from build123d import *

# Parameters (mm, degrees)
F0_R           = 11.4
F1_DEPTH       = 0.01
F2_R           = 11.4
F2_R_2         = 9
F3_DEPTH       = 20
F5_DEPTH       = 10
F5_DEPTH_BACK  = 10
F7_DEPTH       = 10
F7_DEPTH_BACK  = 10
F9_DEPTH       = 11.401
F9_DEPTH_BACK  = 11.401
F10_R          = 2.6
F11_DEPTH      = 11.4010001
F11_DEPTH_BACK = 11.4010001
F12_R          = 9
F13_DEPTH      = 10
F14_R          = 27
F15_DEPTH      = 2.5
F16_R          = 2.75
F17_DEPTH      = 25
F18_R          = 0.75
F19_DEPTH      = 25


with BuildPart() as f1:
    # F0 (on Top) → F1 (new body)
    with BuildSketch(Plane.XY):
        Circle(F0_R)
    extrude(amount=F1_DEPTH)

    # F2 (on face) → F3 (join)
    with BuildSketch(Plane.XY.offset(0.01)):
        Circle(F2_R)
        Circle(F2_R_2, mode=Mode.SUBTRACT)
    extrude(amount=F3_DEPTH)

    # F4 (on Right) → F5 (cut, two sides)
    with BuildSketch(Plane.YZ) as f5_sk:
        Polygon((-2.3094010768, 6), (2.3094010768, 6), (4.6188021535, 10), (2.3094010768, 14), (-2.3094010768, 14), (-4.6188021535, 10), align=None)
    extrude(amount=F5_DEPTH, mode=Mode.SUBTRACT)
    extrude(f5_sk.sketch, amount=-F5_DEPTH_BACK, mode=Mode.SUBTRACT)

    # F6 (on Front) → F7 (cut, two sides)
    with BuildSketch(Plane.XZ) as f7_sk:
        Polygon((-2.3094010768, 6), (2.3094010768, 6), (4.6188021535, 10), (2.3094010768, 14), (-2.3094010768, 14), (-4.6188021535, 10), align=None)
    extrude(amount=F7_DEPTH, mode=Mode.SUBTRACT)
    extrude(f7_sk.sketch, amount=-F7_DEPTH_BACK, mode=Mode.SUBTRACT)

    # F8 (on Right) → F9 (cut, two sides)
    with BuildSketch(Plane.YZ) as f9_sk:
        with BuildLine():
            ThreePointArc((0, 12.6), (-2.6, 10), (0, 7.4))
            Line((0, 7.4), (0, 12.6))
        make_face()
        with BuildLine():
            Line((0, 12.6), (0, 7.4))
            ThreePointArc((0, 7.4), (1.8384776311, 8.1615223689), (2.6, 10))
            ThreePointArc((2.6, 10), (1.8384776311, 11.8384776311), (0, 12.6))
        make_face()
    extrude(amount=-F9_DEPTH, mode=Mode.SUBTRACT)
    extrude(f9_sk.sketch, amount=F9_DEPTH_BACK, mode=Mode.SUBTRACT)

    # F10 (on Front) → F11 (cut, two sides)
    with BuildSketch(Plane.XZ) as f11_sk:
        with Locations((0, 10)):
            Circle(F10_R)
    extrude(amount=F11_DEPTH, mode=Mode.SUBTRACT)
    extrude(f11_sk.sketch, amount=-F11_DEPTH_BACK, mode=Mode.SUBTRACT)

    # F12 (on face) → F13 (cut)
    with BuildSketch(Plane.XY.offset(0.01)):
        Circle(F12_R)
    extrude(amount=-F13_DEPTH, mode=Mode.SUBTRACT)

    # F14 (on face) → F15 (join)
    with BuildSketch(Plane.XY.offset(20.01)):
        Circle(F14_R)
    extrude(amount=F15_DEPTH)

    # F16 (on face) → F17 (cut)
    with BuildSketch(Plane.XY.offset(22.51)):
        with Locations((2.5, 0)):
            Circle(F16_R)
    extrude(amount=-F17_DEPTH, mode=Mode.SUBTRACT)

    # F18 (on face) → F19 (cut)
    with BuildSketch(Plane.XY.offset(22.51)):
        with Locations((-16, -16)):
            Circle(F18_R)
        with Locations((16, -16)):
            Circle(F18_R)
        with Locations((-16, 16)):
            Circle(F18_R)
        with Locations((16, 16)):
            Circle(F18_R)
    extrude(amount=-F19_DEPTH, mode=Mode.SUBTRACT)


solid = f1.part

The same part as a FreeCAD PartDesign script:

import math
import FreeCAD as App
import Part
import Sketcher
Q = App.Units.Quantity


def add_polygon(sketch, points):
    """Adds a closed chain of lines whose ends are joined by coincident constraints."""
    first, n = sketch.GeometryCount, len(points)
    for a, b in zip(points, points[1:] + points[:1]):
        sketch.addGeometry(Part.LineSegment(App.Vector(*a, 0), App.Vector(*b, 0)), False)
    for i in range(n):
        sketch.addConstraint(Sketcher.Constraint("Coincident", first + i, 2, first + (i + 1) % n, 1))

doc = App.newDocument("Part")
params = doc.addObject("Spreadsheet::Sheet", "Params")
for row, (alias, value) in enumerate([
    ("sketch1_diameter", "22.8 mm"),
    ("pad1_length", "0.01 mm"),
    ("sketch2_diameter", "18 mm"),
    ("sketch2_diameter2", "22.8 mm"),
    ("pad2_length", "20 mm"),
    ("pocket1_length", "10 mm"),
    ("pocket1_length2", "10 mm"),
    ("pocket2_length", "10 mm"),
    ("pocket2_length2", "10 mm"),
    ("sketch5_radius", "2.6 mm"),
    ("sketch6_diameter", "5.2 mm"),
    ("pocket4_length", "11.401 mm"),
    ("pocket4_length2", "11.401 mm"),
    ("sketch7_diameter", "18 mm"),
    ("pocket5_length", "10 mm"),
    ("sketch8_diameter", "54 mm"),
    ("pad3_length", "2.5 mm"),
    ("sketch9_diameter", "5.5 mm"),
    ("pocket6_length", "25 mm"),
    ("sketch10_diameter", "1.5 mm"),
    ("pocket7_length", "25 mm"),
], start=1):
    params.set(f"A{row}", alias)
    params.set(f"B{row}", "=" + value)
    params.setAlias(f"B{row}", alias)

body = doc.addObject("PartDesign::Body", "Body")

# Sketch on XY plane
sketch1 = doc.addObject("Sketcher::SketchObject", "Sketch")
body.addObject(sketch1)
sketch1.AttachmentSupport = (doc.XY_Plane, [""])
sketch1.MapMode = "FlatFace"
sketch1.addGeometry(Part.Circle(App.Vector(0, 0, 0), App.Vector(0, 0, 1), 11), False)
sketch1.addConstraint(Sketcher.Constraint("Coincident", 0, 3, -1, 1))
sketch1.addConstraint(Sketcher.Constraint("Diameter", 0, 22.8))
sketch1.setExpression("Constraints[1]", "Params.sketch1_diameter")
pad1 = doc.addObject("PartDesign::Pad", "Pad")
body.addObject(pad1)
pad1.Profile = sketch1
pad1.setExpression("Length", "Params.pad1_length")

# Sketch on XY plane
sketch2 = doc.addObject("Sketcher::SketchObject", "Sketch001")
body.addObject(sketch2)
sketch2.AttachmentSupport = (doc.XY_Plane, [""])
sketch2.MapMode = "FlatFace"
sketch2.AttachmentOffset = App.Placement(App.Vector(0, 0, 0.01), App.Rotation())
sketch2.addGeometry(Part.Circle(App.Vector(0, 0, 0), App.Vector(0, 0, 1), 11), False)
sketch2.addGeometry(Part.Circle(App.Vector(0, 0, 0), App.Vector(0, 0, 1), 9), False)
sketch2.addConstraint(Sketcher.Constraint("Coincident", 0, 3, -1, 1))
sketch2.addConstraint(Sketcher.Constraint("Coincident", 1, 3, -1, 1))
sketch2.addConstraint(Sketcher.Constraint("Diameter", 1, 18.0))
sketch2.addConstraint(Sketcher.Constraint("Diameter", 0, 22.8))
sketch2.setExpression("Constraints[2]", "Params.sketch2_diameter")
sketch2.setExpression("Constraints[3]", "Params.sketch2_diameter2")
pad2 = doc.addObject("PartDesign::Pad", "Pad001")
body.addObject(pad2)
pad2.Profile = sketch2
pad2.setExpression("Length", "Params.pad2_length")

# Sketch on YZ plane
sketch3 = doc.addObject("Sketcher::SketchObject", "Sketch002")
body.addObject(sketch3)
sketch3.AttachmentSupport = (doc.YZ_Plane, [""])
sketch3.MapMode = "FlatFace"
add_polygon(sketch3, [(-2.3, 6), (2.3, 6), (4.6, 10), (2.3, 14), (-2.3, 14), (-4.6, 10)])  # lines 0-5
sketch3.addConstraint(Sketcher.Constraint("Horizontal", 0))
sketch3.addConstraint(Sketcher.Constraint("Horizontal", 3))
sketch3.addConstraint(Sketcher.Constraint("Symmetric", 1, 2, 4, 2, -2))
sketch3.addConstraint(Sketcher.Constraint("Parallel", 1, 4))
sketch3.addConstraint(Sketcher.Constraint("Parallel", 2, 5))
sketch3.addConstraint(Sketcher.Constraint("Vertical", 0, 2, 2, 2))
sketch3.addConstraint(Sketcher.Constraint("Vertical", 3, 2, 5, 2))
sketch3.addConstraint(Sketcher.Constraint("Angle", 1, Q("60 deg")))
sketch3.addConstraint(Sketcher.Constraint("DistanceY", -1, 1, 0, 2, 6.0))
sketch3.addConstraint(Sketcher.Constraint("DistanceY", -1, 1, 1, 2, 10.0))
sketch3.addConstraint(Sketcher.Constraint("DistanceX", -1, 1, 0, 2, 2.309401))
pocket1 = doc.addObject("PartDesign::Pocket", "Pocket")
body.addObject(pocket1)
pocket1.Profile = sketch3
pocket1.Type = "TwoLengths"
pocket1.setExpression("Length", "Params.pocket1_length")
pocket1.setExpression("Length2", "Params.pocket1_length2")
pocket1.Reversed = True

# Sketch on XZ plane
sketch4 = doc.addObject("Sketcher::SketchObject", "Sketch003")
body.addObject(sketch4)
sketch4.AttachmentSupport = (doc.XZ_Plane, [""])
sketch4.MapMode = "FlatFace"
add_polygon(sketch4, [(-2.3, 6), (2.3, 6), (4.6, 10), (2.3, 14), (-2.3, 14), (-4.6, 10)])  # lines 0-5
sketch4.addConstraint(Sketcher.Constraint("Horizontal", 0))
sketch4.addConstraint(Sketcher.Constraint("Horizontal", 3))
sketch4.addConstraint(Sketcher.Constraint("Symmetric", 1, 2, 4, 2, -2))
sketch4.addConstraint(Sketcher.Constraint("Parallel", 1, 4))
sketch4.addConstraint(Sketcher.Constraint("Parallel", 2, 5))
sketch4.addConstraint(Sketcher.Constraint("Vertical", 0, 2, 2, 2))
sketch4.addConstraint(Sketcher.Constraint("Vertical", 3, 2, 5, 2))
sketch4.addConstraint(Sketcher.Constraint("Angle", 1, Q("60 deg")))
sketch4.addConstraint(Sketcher.Constraint("DistanceY", -1, 1, 0, 2, 6.0))
sketch4.addConstraint(Sketcher.Constraint("DistanceY", -1, 1, 1, 2, 10.0))
sketch4.addConstraint(Sketcher.Constraint("DistanceX", -1, 1, 0, 2, 2.309401))
pocket2 = doc.addObject("PartDesign::Pocket", "Pocket001")
body.addObject(pocket2)
pocket2.Profile = sketch4
pocket2.Type = "TwoLengths"
pocket2.setExpression("Length", "Params.pocket2_length")
pocket2.setExpression("Length2", "Params.pocket2_length2")
pocket2.Reversed = True

# Sketch on YZ plane
sketch5 = doc.addObject("Sketcher::SketchObject", "Sketch004")
body.addObject(sketch5)
sketch5.AttachmentSupport = (doc.YZ_Plane, [""])
sketch5.MapMode = "FlatFace"
sketch5.addGeometry(Part.ArcOfCircle(Part.Circle(App.Vector(0, 10, 0), App.Vector(0, 0, 1), 2.6), math.radians(90), math.radians(270)), False)
sketch5.addGeometry(Part.ArcOfCircle(Part.Circle(App.Vector(0, 10, 0), App.Vector(0, 0, 1), 2.6), math.radians(-90), math.radians(0)), False)
sketch5.addGeometry(Part.ArcOfCircle(Part.Circle(App.Vector(0, 10, 0), App.Vector(0, 0, 1), 2.6), math.radians(0), math.radians(90)), False)
sketch5.addConstraint(Sketcher.Constraint("Tangent", 0, 2, 1, 1))
sketch5.addConstraint(Sketcher.Constraint("Tangent", 1, 2, 2, 1))
sketch5.addConstraint(Sketcher.Constraint("Tangent", 2, 2, 0, 1))
sketch5.addConstraint(Sketcher.Constraint("PointOnObject", 0, 3, -2))
sketch5.addConstraint(Sketcher.Constraint("PointOnObject", 0, 2, -2))
sketch5.addConstraint(Sketcher.Constraint("PointOnObject", 2, 2, -2))
sketch5.addConstraint(Sketcher.Constraint("Horizontal", 2, 3, 1, 2))
sketch5.addConstraint(Sketcher.Constraint("Radius", 0, 2.6))
sketch5.addConstraint(Sketcher.Constraint("DistanceY", -1, 1, 0, 3, 10.0))
sketch5.setExpression("Constraints[7]", "Params.sketch5_radius")
pocket3 = doc.addObject("PartDesign::Pocket", "Pocket002")
body.addObject(pocket3)
pocket3.Profile = sketch5
pocket3.Type = "ThroughAll"
pocket3.Midplane = True

# Sketch on XZ plane
sketch6 = doc.addObject("Sketcher::SketchObject", "Sketch005")
body.addObject(sketch6)
sketch6.AttachmentSupport = (doc.XZ_Plane, [""])
sketch6.MapMode = "FlatFace"
sketch6.addGeometry(Part.Circle(App.Vector(0, 10, 0), App.Vector(0, 0, 1), 2.6), False)
sketch6.addConstraint(Sketcher.Constraint("PointOnObject", 0, 3, -2))
sketch6.addConstraint(Sketcher.Constraint("Diameter", 0, 5.2))
sketch6.addConstraint(Sketcher.Constraint("DistanceY", -1, 1, 0, 3, 10.0))
sketch6.setExpression("Constraints[1]", "Params.sketch6_diameter")
pocket4 = doc.addObject("PartDesign::Pocket", "Pocket003")
body.addObject(pocket4)
pocket4.Profile = sketch6
pocket4.Type = "TwoLengths"
pocket4.setExpression("Length", "Params.pocket4_length")
pocket4.setExpression("Length2", "Params.pocket4_length2")
pocket4.Reversed = True

# Sketch on XY plane
sketch7 = doc.addObject("Sketcher::SketchObject", "Sketch006")
body.addObject(sketch7)
sketch7.AttachmentSupport = (doc.XY_Plane, [""])
sketch7.MapMode = "FlatFace"
sketch7.AttachmentOffset = App.Placement(App.Vector(0, 0, 0.01), App.Rotation())
sketch7.addGeometry(Part.Circle(App.Vector(0, 0, 0), App.Vector(0, 0, 1), 9), False)
sketch7.addConstraint(Sketcher.Constraint("Coincident", 0, 3, -1, 1))
sketch7.addConstraint(Sketcher.Constraint("Diameter", 0, 18.0))
sketch7.setExpression("Constraints[1]", "Params.sketch7_diameter")
pocket5 = doc.addObject("PartDesign::Pocket", "Pocket004")
body.addObject(pocket5)
pocket5.Profile = sketch7
pocket5.setExpression("Length", "Params.pocket5_length")

# Sketch on XY plane
sketch8 = doc.addObject("Sketcher::SketchObject", "Sketch007")
body.addObject(sketch8)
sketch8.AttachmentSupport = (doc.XY_Plane, [""])
sketch8.MapMode = "FlatFace"
sketch8.AttachmentOffset = App.Placement(App.Vector(0, 0, 20.01), App.Rotation())
sketch8.addGeometry(Part.Circle(App.Vector(0, 0, 0), App.Vector(0, 0, 1), 27), False)
sketch8.addConstraint(Sketcher.Constraint("Coincident", 0, 3, -1, 1))
sketch8.addConstraint(Sketcher.Constraint("Diameter", 0, 54.0))
sketch8.setExpression("Constraints[1]", "Params.sketch8_diameter")
pad3 = doc.addObject("PartDesign::Pad", "Pad002")
body.addObject(pad3)
pad3.Profile = sketch8
pad3.setExpression("Length", "Params.pad3_length")

# Sketch on XY plane
sketch9 = doc.addObject("Sketcher::SketchObject", "Sketch008")
body.addObject(sketch9)
sketch9.AttachmentSupport = (doc.XY_Plane, [""])
sketch9.MapMode = "FlatFace"
sketch9.AttachmentOffset = App.Placement(App.Vector(0, 0, 22.51), App.Rotation())
sketch9.addGeometry(Part.Circle(App.Vector(2.5, 0, 0), App.Vector(0, 0, 1), 2.8), False)
sketch9.addConstraint(Sketcher.Constraint("PointOnObject", 0, 3, -1))
sketch9.addConstraint(Sketcher.Constraint("Diameter", 0, 5.5))
sketch9.addConstraint(Sketcher.Constraint("DistanceX", -1, 1, 0, 3, 2.5))
sketch9.setExpression("Constraints[1]", "Params.sketch9_diameter")
pocket6 = doc.addObject("PartDesign::Pocket", "Pocket005")
body.addObject(pocket6)
pocket6.Profile = sketch9
pocket6.setExpression("Length", "Params.pocket6_length")

# Sketch on XY plane
sketch10 = doc.addObject("Sketcher::SketchObject", "Sketch009")
body.addObject(sketch10)
sketch10.AttachmentSupport = (doc.XY_Plane, [""])
sketch10.MapMode = "FlatFace"
sketch10.AttachmentOffset = App.Placement(App.Vector(0, 0, 22.51), App.Rotation())
sketch10.addGeometry(Part.Circle(App.Vector(-16, -16, 0), App.Vector(0, 0, 1), 0.8), False)
sketch10.addGeometry(Part.Circle(App.Vector(16, -16, 0), App.Vector(0, 0, 1), 0.8), False)
sketch10.addGeometry(Part.Circle(App.Vector(-16, 16, 0), App.Vector(0, 0, 1), 0.8), False)
sketch10.addGeometry(Part.Circle(App.Vector(16, 16, 0), App.Vector(0, 0, 1), 0.8), False)
sketch10.addConstraint(Sketcher.Constraint("Equal", 0, 1))
sketch10.addConstraint(Sketcher.Constraint("Equal", 1, 2))
sketch10.addConstraint(Sketcher.Constraint("Equal", 2, 3))
sketch10.addConstraint(Sketcher.Constraint("Symmetric", 1, 3, 2, 3, -1, 1))
sketch10.addConstraint(Sketcher.Constraint("Symmetric", 0, 3, 3, 3, -1, 1))
sketch10.addConstraint(Sketcher.Constraint("Symmetric", 0, 3, 1, 3, -2))
sketch10.addConstraint(Sketcher.Constraint("Diameter", 0, 1.5))
sketch10.addConstraint(Sketcher.Constraint("DistanceX", 0, 3, -1, 1, 16.0))
sketch10.addConstraint(Sketcher.Constraint("DistanceY", 0, 3, -1, 1, 16.0))
sketch10.setExpression("Constraints[6]", "Params.sketch10_diameter")
pocket7 = doc.addObject("PartDesign::Pocket", "Pocket006")
body.addObject(pocket7)
pocket7.Profile = sketch10
pocket7.setExpression("Length", "Params.pocket7_length")

doc.recompute()
